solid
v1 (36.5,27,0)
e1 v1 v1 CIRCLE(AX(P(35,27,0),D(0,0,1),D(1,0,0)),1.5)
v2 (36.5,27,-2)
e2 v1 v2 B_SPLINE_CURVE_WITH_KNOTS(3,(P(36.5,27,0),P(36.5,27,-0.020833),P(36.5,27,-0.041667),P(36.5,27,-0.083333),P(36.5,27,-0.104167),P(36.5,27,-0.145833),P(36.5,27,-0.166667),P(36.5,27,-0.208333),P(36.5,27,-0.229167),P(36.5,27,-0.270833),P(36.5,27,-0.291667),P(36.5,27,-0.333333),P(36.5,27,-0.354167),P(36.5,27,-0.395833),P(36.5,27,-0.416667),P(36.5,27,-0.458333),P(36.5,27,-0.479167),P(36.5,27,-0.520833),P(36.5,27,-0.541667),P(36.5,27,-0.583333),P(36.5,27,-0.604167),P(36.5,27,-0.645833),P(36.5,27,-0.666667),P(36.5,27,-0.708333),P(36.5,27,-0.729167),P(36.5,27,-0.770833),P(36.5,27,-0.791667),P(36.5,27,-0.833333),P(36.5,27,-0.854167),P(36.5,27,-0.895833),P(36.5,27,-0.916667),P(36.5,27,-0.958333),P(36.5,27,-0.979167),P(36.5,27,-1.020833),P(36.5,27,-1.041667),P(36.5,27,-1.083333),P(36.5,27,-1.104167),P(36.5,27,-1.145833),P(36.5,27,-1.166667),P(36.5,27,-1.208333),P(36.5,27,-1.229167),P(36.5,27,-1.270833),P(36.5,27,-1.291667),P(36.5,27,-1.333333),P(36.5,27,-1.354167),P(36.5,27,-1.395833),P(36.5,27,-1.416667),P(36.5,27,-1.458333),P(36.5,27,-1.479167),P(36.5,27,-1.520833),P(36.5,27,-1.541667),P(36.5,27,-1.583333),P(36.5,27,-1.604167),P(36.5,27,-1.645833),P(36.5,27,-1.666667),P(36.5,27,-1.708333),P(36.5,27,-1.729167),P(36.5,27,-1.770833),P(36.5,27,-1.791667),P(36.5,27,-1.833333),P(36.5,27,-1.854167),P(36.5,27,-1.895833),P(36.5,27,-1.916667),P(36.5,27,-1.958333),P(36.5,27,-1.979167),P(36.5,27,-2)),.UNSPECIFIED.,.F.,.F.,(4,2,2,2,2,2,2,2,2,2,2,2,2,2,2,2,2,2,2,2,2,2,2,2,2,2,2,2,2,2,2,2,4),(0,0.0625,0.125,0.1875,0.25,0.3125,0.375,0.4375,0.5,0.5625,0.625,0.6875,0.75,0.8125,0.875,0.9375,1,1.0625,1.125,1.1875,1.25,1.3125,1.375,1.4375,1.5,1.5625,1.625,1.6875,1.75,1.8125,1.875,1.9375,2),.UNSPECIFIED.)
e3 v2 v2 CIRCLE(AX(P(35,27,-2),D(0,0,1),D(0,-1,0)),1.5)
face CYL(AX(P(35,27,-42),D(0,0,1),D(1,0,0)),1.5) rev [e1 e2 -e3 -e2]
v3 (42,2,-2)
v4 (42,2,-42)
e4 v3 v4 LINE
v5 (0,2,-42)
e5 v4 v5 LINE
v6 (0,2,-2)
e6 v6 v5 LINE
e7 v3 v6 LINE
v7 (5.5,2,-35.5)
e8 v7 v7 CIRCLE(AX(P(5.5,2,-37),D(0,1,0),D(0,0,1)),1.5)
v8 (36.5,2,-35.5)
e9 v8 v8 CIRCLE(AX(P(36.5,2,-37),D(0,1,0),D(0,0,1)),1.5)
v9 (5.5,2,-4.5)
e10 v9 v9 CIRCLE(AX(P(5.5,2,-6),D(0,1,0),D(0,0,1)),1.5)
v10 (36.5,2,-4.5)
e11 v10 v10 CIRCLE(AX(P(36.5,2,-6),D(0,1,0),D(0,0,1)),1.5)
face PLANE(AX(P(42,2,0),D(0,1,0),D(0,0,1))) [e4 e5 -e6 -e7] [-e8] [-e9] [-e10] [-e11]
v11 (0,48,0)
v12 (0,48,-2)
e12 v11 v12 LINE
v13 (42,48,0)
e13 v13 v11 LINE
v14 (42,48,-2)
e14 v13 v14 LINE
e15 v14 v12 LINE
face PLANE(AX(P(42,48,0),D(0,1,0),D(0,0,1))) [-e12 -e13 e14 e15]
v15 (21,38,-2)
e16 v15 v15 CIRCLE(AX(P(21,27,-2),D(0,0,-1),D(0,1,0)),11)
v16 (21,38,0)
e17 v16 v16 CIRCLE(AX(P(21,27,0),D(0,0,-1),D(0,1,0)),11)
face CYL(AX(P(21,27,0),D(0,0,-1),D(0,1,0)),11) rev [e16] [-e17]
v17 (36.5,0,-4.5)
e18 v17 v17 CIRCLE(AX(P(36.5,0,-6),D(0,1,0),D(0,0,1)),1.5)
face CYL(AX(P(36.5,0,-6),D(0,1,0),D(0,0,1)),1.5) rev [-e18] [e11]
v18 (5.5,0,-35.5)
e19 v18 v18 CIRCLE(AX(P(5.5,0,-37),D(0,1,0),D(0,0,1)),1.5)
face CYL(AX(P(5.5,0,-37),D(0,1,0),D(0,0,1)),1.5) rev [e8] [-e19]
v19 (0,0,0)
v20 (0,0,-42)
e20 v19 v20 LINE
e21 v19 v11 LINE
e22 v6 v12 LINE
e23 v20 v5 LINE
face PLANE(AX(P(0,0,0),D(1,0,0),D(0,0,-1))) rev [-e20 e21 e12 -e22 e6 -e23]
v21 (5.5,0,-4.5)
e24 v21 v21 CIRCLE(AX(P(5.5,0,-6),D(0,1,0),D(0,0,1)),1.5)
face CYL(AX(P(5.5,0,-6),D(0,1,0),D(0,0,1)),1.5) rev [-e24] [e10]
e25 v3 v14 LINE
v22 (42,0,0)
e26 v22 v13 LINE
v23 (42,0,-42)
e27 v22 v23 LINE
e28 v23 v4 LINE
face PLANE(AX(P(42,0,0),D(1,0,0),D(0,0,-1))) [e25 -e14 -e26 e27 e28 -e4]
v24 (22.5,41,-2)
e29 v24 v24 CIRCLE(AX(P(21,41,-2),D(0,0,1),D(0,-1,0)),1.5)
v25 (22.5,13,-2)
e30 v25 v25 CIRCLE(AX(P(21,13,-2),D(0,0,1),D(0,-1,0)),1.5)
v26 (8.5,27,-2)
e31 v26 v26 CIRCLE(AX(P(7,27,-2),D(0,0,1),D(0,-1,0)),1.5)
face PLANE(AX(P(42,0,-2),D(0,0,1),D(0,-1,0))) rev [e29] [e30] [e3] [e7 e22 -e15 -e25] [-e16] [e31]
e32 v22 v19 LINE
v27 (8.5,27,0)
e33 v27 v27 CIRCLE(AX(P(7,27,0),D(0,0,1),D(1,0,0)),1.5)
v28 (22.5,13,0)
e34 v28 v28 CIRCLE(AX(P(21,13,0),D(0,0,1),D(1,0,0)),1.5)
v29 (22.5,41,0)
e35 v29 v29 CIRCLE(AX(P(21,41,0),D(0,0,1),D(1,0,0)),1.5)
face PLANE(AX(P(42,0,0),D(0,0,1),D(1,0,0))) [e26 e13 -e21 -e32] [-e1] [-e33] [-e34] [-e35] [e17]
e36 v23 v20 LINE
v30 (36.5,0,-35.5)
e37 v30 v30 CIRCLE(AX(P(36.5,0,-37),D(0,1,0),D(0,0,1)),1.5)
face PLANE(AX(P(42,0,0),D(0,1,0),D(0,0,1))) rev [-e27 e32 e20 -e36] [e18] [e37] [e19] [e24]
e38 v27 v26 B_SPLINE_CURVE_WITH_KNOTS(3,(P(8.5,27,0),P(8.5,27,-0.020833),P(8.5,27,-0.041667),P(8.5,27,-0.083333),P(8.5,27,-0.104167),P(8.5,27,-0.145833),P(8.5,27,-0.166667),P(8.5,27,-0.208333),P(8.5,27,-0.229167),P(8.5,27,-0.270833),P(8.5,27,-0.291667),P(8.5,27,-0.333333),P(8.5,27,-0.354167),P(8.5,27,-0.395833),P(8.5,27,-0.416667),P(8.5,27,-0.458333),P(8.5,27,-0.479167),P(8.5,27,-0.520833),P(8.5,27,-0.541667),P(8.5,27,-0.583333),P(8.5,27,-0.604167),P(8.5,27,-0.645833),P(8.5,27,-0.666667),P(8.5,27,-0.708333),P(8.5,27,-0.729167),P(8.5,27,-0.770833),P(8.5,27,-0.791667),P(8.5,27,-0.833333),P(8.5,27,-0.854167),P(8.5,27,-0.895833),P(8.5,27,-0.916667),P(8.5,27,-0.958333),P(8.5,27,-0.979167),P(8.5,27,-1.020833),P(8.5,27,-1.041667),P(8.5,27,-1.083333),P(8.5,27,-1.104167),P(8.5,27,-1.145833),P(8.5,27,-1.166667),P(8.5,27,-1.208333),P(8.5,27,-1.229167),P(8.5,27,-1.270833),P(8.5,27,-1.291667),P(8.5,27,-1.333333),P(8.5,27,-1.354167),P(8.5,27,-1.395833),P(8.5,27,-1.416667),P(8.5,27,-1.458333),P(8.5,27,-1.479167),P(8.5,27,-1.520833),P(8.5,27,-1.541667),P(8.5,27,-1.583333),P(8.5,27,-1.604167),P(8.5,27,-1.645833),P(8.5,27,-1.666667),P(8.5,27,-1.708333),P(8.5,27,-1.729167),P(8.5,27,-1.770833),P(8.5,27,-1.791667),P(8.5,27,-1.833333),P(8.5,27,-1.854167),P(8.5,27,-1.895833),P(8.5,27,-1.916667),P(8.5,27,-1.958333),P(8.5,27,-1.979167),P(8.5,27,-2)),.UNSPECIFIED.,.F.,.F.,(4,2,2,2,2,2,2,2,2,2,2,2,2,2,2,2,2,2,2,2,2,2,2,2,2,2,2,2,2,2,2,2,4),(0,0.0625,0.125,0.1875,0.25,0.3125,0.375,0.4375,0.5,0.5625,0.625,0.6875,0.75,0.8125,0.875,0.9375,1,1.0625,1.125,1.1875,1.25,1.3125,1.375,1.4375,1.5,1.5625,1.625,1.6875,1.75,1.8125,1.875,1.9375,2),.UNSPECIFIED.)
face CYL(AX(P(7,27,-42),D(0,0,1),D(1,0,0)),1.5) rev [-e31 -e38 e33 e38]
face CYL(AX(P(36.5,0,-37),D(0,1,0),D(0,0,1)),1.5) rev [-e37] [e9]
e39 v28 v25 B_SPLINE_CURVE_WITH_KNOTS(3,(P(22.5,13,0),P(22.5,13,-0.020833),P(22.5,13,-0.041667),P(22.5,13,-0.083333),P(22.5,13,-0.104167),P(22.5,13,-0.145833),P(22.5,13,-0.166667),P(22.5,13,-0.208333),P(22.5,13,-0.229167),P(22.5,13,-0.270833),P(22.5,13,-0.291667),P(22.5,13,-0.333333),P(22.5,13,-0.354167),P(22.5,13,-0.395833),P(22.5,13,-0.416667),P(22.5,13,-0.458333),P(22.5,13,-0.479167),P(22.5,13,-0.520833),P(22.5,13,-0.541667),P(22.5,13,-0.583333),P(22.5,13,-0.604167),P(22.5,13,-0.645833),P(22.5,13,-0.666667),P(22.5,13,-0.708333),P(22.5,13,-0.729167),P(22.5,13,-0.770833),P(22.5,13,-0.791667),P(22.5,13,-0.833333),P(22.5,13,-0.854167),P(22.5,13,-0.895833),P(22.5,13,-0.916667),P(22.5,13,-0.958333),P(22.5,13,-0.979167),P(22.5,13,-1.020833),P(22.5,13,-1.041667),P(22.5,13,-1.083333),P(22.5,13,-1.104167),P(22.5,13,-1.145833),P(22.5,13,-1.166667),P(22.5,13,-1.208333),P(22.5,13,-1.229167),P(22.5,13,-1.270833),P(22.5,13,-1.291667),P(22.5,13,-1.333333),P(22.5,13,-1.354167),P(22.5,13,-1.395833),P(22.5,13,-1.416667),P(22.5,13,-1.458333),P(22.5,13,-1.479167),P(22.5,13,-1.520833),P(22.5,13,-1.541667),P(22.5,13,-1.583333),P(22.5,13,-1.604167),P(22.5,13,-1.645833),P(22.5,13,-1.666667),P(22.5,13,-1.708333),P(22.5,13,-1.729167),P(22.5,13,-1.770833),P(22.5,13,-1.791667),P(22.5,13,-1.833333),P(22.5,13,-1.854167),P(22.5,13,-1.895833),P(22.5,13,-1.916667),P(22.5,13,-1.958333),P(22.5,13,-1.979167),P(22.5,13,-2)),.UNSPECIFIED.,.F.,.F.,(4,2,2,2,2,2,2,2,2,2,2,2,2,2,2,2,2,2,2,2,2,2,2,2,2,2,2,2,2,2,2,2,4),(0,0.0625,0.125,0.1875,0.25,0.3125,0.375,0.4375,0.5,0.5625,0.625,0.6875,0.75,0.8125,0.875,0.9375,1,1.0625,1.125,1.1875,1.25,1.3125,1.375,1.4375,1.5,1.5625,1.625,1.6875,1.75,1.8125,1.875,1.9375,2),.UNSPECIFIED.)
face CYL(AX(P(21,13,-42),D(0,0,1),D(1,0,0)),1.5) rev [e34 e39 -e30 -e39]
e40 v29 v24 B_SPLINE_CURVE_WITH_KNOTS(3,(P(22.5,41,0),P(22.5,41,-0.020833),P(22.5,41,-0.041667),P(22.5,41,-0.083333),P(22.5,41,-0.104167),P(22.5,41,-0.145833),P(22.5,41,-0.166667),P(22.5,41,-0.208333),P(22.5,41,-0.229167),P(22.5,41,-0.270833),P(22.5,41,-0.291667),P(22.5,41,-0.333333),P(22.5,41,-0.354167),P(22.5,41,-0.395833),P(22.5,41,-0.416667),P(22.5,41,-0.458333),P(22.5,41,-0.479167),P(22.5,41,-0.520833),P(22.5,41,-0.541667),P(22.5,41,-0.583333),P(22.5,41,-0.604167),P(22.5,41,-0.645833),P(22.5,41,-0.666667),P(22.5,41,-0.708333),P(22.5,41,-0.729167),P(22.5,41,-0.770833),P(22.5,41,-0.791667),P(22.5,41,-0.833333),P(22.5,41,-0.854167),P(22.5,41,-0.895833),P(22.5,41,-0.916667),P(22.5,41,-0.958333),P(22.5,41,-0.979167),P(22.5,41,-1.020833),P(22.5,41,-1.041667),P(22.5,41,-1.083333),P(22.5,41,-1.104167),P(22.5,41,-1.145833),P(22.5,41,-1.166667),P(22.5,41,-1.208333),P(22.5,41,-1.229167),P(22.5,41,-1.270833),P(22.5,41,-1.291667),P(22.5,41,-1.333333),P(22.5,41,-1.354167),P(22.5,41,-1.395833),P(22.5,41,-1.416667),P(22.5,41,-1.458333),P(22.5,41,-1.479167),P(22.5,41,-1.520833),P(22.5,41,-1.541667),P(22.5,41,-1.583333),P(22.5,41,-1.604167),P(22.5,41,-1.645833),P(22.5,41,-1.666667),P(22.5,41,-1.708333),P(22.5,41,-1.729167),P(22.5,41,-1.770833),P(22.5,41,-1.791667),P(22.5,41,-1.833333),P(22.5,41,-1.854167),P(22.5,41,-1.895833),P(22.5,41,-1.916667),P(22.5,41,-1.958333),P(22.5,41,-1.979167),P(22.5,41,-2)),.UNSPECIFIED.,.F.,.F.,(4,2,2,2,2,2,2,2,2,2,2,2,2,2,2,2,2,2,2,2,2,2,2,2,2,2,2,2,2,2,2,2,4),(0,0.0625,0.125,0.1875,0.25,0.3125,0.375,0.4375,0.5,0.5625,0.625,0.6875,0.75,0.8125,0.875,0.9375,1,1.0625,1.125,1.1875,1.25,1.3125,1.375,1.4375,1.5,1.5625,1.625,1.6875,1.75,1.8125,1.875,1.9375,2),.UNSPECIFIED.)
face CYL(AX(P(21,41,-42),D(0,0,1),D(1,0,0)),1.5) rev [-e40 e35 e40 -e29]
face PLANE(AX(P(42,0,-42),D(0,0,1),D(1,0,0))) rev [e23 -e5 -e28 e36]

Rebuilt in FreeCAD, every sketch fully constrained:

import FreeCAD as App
import Part
import Sketcher

doc = App.newDocument("Part")
body = doc.addObject("PartDesign::Body", "Body")

sketch1 = body.newObject("Sketcher::SketchObject", "Sketch")
sketch1.AttachmentSupport = (doc.getObject("YZ_Plane"), [""])
sketch1.MapMode = "FlatFace"
sketch1.addGeometry([
    Part.LineSegment(App.Vector(0, 0, 0), App.Vector(0, -42, 0)),
    Part.LineSegment(App.Vector(0, -42, 0), App.Vector(2, -42, 0)),
    Part.LineSegment(App.Vector(2, -42, 0), App.Vector(2, -2, 0)),
    Part.LineSegment(App.Vector(2, -2, 0), App.Vector(48, -2, 0)),
    Part.LineSegment(App.Vector(48, -2, 0), App.Vector(48, 0, 0)),
    Part.LineSegment(App.Vector(48, 0, 0), App.Vector(0, 0, 0)),
], False)
sketch1.addConstraint([
    Sketcher.Constraint("Coincident", 0, 2, 1, 1),
    Sketcher.Constraint("Coincident", 1, 2, 2, 1),
    Sketcher.Constraint("Coincident", 2, 2, 3, 1),
    Sketcher.Constraint("Coincident", 3, 2, 4, 1),
    Sketcher.Constraint("Coincident", 4, 2, 5, 1),
    Sketcher.Constraint("Coincident", 5, 2, 0, 1),
    Sketcher.Constraint("Vertical", 0),
    Sketcher.Constraint("Horizontal", 1),
    Sketcher.Constraint("Vertical", 2),
    Sketcher.Constraint("Horizontal", 3),
    Sketcher.Constraint("Vertical", 4),
    Sketcher.Constraint("Horizontal", 5),
    Sketcher.Constraint("Coincident", 5, 2, -1, 1),
    Sketcher.Constraint("Equal", 1, 4),
    Sketcher.Constraint("DistanceX", 1, 1, 1, 2, 2.0),
    Sketcher.Constraint("DistanceX", 3, 1, 3, 2, 46.0),
    Sketcher.Constraint("DistanceY", 0, 2, 0, 1, 42.0),
])
pad1 = body.newObject("PartDesign::Pad", "Pad")
pad1.Profile = sketch1
pad1.Length = 42

sketch2 = body.newObject("Sketcher::SketchObject", "Sketch001")
sketch2.AttachmentSupport = (doc.getObject("XY_Plane"), [""])
sketch2.MapMode = "FlatFace"
sketch2.AttachmentOffset = App.Placement(App.Vector(0, 0, -2), App.Rotation())
sketch2.addGeometry(Part.Circle(App.Vector(21, 27, 0), App.Vector(0, 0, 1), 11), False)
sketch2.addConstraint([
    Sketcher.Constraint("Diameter", 0, 22.0),
    Sketcher.Constraint("DistanceX", -1, 1, 0, 3, 21.0),
    Sketcher.Constraint("DistanceY", -1, 1, 0, 3, 27.0),
])
pocket1 = body.newObject("PartDesign::Pocket", "Pocket")
pocket1.Profile = sketch2
pocket1.Type = "ThroughAll"
pocket1.Reversed = True

sketch3 = body.newObject("Sketcher::SketchObject", "Sketch002")
sketch3.AttachmentSupport = (doc.getObject("XY_Plane"), [""])
sketch3.MapMode = "FlatFace"
sketch3.addGeometry([
    Part.Circle(App.Vector(21, 41, 0), App.Vector(0, 0, 1), 1.5),
    Part.Circle(App.Vector(21, 13, 0), App.Vector(0, 0, 1), 1.5),
    Part.Circle(App.Vector(35, 27, 0), App.Vector(0, 0, 1), 1.5),
    Part.Circle(App.Vector(7, 27, 0), App.Vector(0, 0, 1), 1.5),
], False)
sketch3.addConstraint([
    Sketcher.Constraint("Equal", 0, 1),
    Sketcher.Constraint("Equal", 1, 2),
    Sketcher.Constraint("Equal", 2, 3),
    Sketcher.Constraint("Horizontal", 2, 3, 3, 3),
    Sketcher.Constraint("Vertical", 0, 3, 1, 3),
    Sketcher.Constraint("Diameter", 0, 3.0),
    Sketcher.Constraint("DistanceX", -1, 1, 0, 3, 21.0),
    Sketcher.Constraint("DistanceY", -1, 1, 0, 3, 41.0),
    Sketcher.Constraint("DistanceY", -1, 1, 1, 3, 13.0),
    Sketcher.Constraint("DistanceX", -1, 1, 2, 3, 35.0),
    Sketcher.Constraint("DistanceY", -1, 1, 2, 3, 27.0),
    Sketcher.Constraint("DistanceX", -1, 1, 3, 3, 7.0),
])
pocket2 = body.newObject("PartDesign::Pocket", "Pocket001")
pocket2.Profile = sketch3
pocket2.Type = "ThroughAll"

sketch4 = body.newObject("Sketcher::SketchObject", "Sketch003")
sketch4.AttachmentSupport = (doc.getObject("XZ_Plane"), [""])
sketch4.MapMode = "FlatFace"
sketch4.AttachmentOffset = App.Placement(App.Vector(0, 0, -2), App.Rotation())
sketch4.addGeometry([
    Part.Circle(App.Vector(5.5, -37, 0), App.Vector(0, 0, 1), 1.5),
    Part.Circle(App.Vector(36.5, -37, 0), App.Vector(0, 0, 1), 1.5),
    Part.Circle(App.Vector(36.5, -6, 0), App.Vector(0, 0, 1), 1.5),
    Part.Circle(App.Vector(5.5, -6, 0), App.Vector(0, 0, 1), 1.5),
], False)
sketch4.addConstraint([
    Sketcher.Constraint("Equal", 0, 1),
    Sketcher.Constraint("Equal", 1, 2),
    Sketcher.Constraint("Equal", 2, 3),
    Sketcher.Constraint("Horizontal", 0, 3, 1, 3),
    Sketcher.Constraint("Horizontal", 2, 3, 3, 3),
    Sketcher.Constraint("Vertical", 1, 3, 2, 3),
    Sketcher.Constraint("Vertical", 0, 3, 3, 3),
    Sketcher.Constraint("Diameter", 0, 3.0),
    Sketcher.Constraint("DistanceY", 0, 3, -1, 1, 37.0),
    Sketcher.Constraint("DistanceY", 2, 3, -1, 1, 6.0),
    Sketcher.Constraint("DistanceX", 0, 3, 1, 3, 31.0),
    Sketcher.Constraint("DistanceX", -1, 1, 0, 3, 5.5),
])
pocket3 = body.newObject("PartDesign::Pocket", "Pocket002")
pocket3.Profile = sketch4
pocket3.Type = "ThroughAll"
pocket3.Reversed = True

doc.recompute()
